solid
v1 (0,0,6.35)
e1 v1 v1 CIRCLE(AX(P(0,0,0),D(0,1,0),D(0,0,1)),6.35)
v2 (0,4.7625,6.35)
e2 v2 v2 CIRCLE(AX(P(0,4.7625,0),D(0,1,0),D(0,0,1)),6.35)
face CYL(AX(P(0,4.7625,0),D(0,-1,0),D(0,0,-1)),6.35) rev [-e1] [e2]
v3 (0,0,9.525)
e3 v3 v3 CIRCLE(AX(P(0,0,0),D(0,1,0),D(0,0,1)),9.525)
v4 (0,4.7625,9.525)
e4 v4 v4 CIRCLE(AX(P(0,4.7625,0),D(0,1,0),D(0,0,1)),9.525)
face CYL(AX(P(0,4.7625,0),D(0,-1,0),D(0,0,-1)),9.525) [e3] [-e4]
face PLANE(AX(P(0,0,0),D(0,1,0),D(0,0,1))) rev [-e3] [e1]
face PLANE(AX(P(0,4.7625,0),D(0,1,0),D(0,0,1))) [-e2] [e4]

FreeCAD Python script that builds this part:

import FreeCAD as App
import Part
import Sketcher
Q = App.Units.Quantity

doc = App.newDocument("Part")
body = doc.addObject("PartDesign::Body", "Body")

# Sketch on XZ plane
sketch1 = doc.addObject("Sketcher::SketchObject", "Sketch")
body.addObject(sketch1)
sketch1.AttachmentSupport = (doc.XZ_Plane, [""])
sketch1.MapMode = "FlatFace"
sketch1.addGeometry(Part.Circle(App.Vector(0, 0, 0), App.Vector(0, 0, 1), 10), False)
sketch1.addGeometry(Part.Circle(App.Vector(0, 0, 0), App.Vector(0, 0, 1), 6), False)
sketch1.addConstraint(Sketcher.Constraint("Coincident", 0, 3, -1, 1))
sketch1.addConstraint(Sketcher.Constraint("Coincident", 1, 3, -1, 1))
sketch1.addConstraint(Sketcher.Constraint("Diameter", 1, Q("0.5 in")))
sketch1.addConstraint(Sketcher.Constraint("Diameter", 0, Q("0.75 in")))
pad1 = doc.addObject("PartDesign::Pad", "Pad")
body.addObject(pad1)
pad1.Profile = sketch1
pad1.Length = Q("0.1875 in")
pad1.Reversed = True

doc.recompute()
